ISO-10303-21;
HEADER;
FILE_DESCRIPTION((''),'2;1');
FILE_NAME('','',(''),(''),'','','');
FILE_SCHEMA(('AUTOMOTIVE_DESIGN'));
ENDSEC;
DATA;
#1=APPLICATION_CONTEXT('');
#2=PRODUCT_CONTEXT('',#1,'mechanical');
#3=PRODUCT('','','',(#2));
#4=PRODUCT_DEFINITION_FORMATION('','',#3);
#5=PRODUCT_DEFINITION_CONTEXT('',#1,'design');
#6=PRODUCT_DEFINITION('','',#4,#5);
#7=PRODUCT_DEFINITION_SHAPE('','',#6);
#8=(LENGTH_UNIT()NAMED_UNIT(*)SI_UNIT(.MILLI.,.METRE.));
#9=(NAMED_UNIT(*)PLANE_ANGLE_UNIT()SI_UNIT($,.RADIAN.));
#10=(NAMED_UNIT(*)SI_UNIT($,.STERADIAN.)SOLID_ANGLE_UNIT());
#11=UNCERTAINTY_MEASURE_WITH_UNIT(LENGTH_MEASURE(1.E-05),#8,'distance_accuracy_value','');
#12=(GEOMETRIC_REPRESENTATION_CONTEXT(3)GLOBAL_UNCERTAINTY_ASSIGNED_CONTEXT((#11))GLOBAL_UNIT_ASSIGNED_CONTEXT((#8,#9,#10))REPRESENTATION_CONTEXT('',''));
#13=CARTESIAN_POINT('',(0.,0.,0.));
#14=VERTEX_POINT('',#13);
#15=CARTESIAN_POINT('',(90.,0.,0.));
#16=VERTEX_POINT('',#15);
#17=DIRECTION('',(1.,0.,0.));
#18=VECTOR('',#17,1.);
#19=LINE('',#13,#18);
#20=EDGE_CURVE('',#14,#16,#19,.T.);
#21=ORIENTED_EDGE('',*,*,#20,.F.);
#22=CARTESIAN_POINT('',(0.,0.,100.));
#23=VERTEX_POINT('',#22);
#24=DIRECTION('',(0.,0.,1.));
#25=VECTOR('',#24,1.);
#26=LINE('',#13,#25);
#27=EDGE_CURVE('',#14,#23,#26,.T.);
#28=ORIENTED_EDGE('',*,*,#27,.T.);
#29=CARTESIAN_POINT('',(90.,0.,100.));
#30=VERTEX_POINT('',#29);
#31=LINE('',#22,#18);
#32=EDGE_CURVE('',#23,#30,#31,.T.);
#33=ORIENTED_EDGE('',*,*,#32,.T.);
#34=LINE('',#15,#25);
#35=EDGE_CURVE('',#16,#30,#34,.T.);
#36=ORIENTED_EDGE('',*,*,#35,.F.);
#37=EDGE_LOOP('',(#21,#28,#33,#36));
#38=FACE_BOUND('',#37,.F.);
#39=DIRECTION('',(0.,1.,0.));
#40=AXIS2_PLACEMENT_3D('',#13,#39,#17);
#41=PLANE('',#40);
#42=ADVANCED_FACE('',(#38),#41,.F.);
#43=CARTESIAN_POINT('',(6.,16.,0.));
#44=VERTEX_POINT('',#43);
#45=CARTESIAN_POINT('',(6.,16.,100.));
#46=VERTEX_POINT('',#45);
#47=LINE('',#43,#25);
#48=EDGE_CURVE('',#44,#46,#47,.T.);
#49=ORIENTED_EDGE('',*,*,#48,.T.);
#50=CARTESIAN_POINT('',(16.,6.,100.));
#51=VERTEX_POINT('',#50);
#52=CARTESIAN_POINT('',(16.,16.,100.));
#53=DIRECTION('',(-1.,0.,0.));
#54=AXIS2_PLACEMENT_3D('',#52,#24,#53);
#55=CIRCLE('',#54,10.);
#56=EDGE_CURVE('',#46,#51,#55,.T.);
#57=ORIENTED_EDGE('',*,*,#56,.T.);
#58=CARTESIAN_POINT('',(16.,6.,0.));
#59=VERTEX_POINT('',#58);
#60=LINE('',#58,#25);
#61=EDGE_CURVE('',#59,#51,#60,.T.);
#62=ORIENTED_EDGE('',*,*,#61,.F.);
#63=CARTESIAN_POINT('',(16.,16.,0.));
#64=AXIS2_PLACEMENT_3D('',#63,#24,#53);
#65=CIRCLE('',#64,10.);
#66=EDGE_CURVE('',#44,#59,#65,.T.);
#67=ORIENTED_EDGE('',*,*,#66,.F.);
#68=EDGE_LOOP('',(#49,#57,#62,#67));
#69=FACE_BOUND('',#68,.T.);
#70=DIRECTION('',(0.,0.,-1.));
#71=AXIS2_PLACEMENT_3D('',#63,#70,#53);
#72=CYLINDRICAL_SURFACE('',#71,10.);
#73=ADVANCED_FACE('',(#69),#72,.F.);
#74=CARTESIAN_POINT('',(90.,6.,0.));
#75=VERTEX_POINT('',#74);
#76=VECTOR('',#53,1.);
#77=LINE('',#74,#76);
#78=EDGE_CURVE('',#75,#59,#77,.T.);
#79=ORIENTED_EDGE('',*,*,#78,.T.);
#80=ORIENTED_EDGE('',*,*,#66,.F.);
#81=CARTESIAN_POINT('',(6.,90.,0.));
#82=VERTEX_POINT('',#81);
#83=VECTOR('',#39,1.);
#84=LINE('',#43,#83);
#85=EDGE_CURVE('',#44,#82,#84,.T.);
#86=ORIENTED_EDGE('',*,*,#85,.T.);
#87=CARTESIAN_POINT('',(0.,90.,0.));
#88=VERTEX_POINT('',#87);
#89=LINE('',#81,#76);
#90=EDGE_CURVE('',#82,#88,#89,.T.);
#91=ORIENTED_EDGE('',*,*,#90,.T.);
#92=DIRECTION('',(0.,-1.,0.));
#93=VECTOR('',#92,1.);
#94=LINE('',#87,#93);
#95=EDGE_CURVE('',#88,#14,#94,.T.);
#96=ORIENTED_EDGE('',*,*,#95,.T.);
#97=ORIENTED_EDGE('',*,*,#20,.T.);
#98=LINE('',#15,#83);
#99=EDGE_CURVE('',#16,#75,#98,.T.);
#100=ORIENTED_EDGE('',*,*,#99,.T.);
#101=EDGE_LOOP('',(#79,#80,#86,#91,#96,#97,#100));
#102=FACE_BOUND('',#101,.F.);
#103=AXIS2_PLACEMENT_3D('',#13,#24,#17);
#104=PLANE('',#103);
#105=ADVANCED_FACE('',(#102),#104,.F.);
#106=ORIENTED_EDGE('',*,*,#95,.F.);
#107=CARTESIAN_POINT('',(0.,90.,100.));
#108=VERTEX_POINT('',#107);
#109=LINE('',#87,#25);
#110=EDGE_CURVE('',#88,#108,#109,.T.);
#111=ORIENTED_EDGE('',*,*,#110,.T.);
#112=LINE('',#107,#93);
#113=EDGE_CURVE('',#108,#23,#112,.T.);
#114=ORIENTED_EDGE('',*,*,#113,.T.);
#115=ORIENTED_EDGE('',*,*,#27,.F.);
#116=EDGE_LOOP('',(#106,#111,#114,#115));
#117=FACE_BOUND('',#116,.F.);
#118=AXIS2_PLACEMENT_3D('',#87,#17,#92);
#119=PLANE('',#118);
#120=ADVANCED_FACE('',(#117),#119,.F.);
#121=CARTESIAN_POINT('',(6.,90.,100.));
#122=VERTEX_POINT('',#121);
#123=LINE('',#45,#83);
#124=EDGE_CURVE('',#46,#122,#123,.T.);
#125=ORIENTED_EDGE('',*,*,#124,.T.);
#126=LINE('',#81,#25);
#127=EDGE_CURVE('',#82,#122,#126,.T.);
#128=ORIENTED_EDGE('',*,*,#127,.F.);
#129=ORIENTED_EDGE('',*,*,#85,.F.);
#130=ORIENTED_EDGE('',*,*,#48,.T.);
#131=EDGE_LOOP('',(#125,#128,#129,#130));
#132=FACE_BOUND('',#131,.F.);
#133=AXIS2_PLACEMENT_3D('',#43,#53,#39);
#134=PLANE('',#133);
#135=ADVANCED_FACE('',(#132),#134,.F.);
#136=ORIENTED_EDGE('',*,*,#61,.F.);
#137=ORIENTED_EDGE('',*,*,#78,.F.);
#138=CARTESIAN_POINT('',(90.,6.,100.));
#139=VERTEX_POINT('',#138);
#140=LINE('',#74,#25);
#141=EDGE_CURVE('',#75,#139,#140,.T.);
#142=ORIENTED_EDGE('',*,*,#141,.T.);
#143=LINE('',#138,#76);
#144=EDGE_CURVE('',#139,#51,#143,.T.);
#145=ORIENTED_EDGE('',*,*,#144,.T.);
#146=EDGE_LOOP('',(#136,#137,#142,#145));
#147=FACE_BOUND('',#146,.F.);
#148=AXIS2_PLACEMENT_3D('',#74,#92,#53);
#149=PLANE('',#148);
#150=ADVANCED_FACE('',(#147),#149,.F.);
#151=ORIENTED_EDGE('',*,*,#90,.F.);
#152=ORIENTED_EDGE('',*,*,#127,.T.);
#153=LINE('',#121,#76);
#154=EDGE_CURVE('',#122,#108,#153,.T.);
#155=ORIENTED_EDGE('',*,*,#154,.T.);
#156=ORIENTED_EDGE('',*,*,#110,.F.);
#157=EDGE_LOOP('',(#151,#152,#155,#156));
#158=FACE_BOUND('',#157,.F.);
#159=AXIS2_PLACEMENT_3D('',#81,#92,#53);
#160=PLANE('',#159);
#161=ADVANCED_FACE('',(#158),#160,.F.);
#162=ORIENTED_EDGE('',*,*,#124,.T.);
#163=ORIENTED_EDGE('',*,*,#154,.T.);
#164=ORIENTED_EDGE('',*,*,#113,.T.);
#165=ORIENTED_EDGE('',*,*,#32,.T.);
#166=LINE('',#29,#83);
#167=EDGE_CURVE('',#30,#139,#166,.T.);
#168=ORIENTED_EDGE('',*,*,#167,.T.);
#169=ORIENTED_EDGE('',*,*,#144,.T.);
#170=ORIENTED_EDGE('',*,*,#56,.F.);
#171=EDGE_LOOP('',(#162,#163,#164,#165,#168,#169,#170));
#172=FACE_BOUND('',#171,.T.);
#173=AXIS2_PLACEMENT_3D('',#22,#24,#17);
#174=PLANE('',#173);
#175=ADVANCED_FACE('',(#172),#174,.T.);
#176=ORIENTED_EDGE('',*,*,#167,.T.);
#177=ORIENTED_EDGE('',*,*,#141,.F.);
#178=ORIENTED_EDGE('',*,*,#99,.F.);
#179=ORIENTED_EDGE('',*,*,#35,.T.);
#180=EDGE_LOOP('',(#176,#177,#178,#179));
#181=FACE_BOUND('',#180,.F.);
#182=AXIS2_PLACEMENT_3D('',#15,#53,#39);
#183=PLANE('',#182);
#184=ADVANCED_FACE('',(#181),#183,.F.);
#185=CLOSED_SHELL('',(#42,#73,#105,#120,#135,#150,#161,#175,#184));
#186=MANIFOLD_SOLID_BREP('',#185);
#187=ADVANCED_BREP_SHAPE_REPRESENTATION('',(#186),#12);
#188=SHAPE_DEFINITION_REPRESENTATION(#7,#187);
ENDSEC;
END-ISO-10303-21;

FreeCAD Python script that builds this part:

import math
import FreeCAD as App
import Part
import Sketcher

V = App.Vector

doc = App.newDocument("Part")
body = doc.addObject("PartDesign::Body", "Body")

# Sketch on XY plane
sketch1 = body.newObject("Sketcher::SketchObject", "Sketch")
sketch1.AttachmentSupport = (doc.getObject("XY_Plane"), [""])
sketch1.MapMode = "FlatFace"
sketch1.addGeometry(Part.LineSegment(V(90, 0, 0), V(90, 6, 0)), False)
sketch1.addGeometry(Part.LineSegment(V(90, 6, 0), V(16, 6, 0)), False)
sketch1.addGeometry(Part.ArcOfCircle(Part.Circle(V(16, 16, 0), V(0, 0, 1), 10), math.radians(180), math.radians(270)), False)
sketch1.addGeometry(Part.LineSegment(V(6, 16, 0), V(6, 90, 0)), False)
sketch1.addGeometry(Part.LineSegment(V(6, 90, 0), V(0, 90, 0)), False)
sketch1.addGeometry(Part.LineSegment(V(0, 90, 0), V(0, 0, 0)), False)
sketch1.addGeometry(Part.LineSegment(V(0, 0, 0), V(90, 0, 0)), False)
sketch1.addConstraint(Sketcher.Constraint("Coincident", 0, 2, 1, 1))
sketch1.addConstraint(Sketcher.Constraint("Tangent", 1, 2, 2, 2))
sketch1.addConstraint(Sketcher.Constraint("Tangent", 2, 1, 3, 1))
sketch1.addConstraint(Sketcher.Constraint("Coincident", 3, 2, 4, 1))
sketch1.addConstraint(Sketcher.Constraint("Coincident", 4, 2, 5, 1))
sketch1.addConstraint(Sketcher.Constraint("Coincident", 5, 2, 6, 1))
sketch1.addConstraint(Sketcher.Constraint("Coincident", 6, 2, 0, 1))
sketch1.addConstraint(Sketcher.Constraint("Vertical", 0))
sketch1.addConstraint(Sketcher.Constraint("Horizontal", 1))
sketch1.addConstraint(Sketcher.Constraint("Vertical", 3))
sketch1.addConstraint(Sketcher.Constraint("Horizontal", 4))
sketch1.addConstraint(Sketcher.Constraint("Vertical", 5))
sketch1.addConstraint(Sketcher.Constraint("Horizontal", 6))
sketch1.addConstraint(Sketcher.Constraint("Coincident", 5, 2, -1, 1))
sketch1.addConstraint(Sketcher.Constraint("Equal", 4, 0))
sketch1.addConstraint(Sketcher.Constraint("Equal", 1, 3))
sketch1.addConstraint(Sketcher.Constraint("Radius", 2, 10.0))
sketch1.addConstraint(Sketcher.Constraint("DistanceX", 1, 2, 1, 1, 74.0))
sketch1.addConstraint(Sketcher.Constraint("DistanceX", 4, 2, 4, 1, 6.0))
pad1 = body.newObject("PartDesign::Pad", "Pad")
pad1.Profile = sketch1
pad1.Length = 100

doc.recompute()
